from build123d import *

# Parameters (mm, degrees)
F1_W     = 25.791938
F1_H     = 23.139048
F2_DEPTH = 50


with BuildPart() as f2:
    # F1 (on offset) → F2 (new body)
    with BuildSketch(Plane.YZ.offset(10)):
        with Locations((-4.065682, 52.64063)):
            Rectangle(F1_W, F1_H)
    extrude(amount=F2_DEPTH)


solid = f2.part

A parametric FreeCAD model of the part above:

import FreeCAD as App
import Part
import Sketcher
Q = App.Units.Quantity

doc = App.newDocument("Part")
body = doc.addObject("PartDesign::Body", "Body")

# Sketch on YZ plane
sketch1 = doc.addObject("Sketcher::SketchObject", "Sketch")
body.addObject(sketch1)
sketch1.AttachmentSupport = (doc.YZ_Plane, [""])
sketch1.MapMode = "FlatFace"
sketch1.AttachmentOffset = App.Placement(App.Vector(0, 0, 10), App.Rotation())
sketch1.addGeometry([
    Part.LineSegment(App.Vector(-17, 64, 0), App.Vector(-17, 41, 0)),
    Part.LineSegment(App.Vector(-17, 41, 0), App.Vector(9, 41, 0)),
    Part.LineSegment(App.Vector(9, 41, 0), App.Vector(9, 64, 0)),
    Part.LineSegment(App.Vector(9, 64, 0), App.Vector(-17, 64, 0)),
], False)
sketch1.addConstraint([
    Sketcher.Constraint("Coincident", 0, 2, 1, 1),
    Sketcher.Constraint("Coincident", 1, 2, 2, 1),
    Sketcher.Constraint("Coincident", 2, 2, 3, 1),
    Sketcher.Constraint("Coincident", 3, 2, 0, 1),
    Sketcher.Constraint("Vertical", 0),
    Sketcher.Constraint("Horizontal", 1),
    Sketcher.Constraint("Vertical", 2),
    Sketcher.Constraint("Horizontal", 3),
    Sketcher.Constraint("DistanceX", 1, 1, 1, 2, Q("25.791938 mm")),
    Sketcher.Constraint("DistanceY", 0, 2, 0, 1, Q("23.139048 mm")),
    Sketcher.Constraint("DistanceX", 0, 2, -1, 1, Q("16.961651 mm")),
    Sketcher.Constraint("DistanceY", -1, 1, 0, 2, Q("41.071106 mm")),
])
pad1 = doc.addObject("PartDesign::Pad", "Pad")
body.addObject(pad1)
pad1.Profile = sketch1
pad1.Length = 50

doc.recompute()
